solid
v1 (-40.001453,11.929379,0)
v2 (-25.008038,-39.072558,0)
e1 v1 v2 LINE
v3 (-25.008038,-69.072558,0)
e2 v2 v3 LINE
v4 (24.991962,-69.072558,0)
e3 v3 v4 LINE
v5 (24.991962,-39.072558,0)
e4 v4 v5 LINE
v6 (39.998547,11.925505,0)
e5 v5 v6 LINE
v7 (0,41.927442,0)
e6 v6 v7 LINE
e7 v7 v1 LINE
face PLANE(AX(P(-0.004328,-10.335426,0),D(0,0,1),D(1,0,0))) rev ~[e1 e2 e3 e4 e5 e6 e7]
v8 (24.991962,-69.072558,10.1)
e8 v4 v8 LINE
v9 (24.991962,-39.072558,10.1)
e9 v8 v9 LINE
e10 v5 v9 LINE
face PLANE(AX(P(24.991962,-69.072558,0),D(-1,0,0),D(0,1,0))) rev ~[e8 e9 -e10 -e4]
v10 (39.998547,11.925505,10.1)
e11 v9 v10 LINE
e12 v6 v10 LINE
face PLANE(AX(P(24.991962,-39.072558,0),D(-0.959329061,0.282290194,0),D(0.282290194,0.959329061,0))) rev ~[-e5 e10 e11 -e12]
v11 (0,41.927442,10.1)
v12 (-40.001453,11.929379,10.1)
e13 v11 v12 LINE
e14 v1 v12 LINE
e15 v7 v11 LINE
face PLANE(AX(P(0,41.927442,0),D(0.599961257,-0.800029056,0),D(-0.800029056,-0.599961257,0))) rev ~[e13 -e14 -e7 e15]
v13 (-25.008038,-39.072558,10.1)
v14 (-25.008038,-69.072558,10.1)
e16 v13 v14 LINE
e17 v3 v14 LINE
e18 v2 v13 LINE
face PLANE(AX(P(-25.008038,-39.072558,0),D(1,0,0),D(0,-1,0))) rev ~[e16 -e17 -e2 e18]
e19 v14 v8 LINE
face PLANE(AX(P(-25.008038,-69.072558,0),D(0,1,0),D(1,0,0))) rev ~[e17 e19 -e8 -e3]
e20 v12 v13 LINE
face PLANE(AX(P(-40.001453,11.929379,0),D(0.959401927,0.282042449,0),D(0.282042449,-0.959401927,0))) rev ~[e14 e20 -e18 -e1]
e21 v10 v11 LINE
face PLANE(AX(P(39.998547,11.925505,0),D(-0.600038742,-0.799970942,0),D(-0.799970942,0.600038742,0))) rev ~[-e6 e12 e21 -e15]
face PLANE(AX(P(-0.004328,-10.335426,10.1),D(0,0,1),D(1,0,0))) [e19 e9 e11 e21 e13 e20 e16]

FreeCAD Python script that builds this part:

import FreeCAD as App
import Part
import Sketcher

V = App.Vector
Q = App.Units.Quantity


def add_polygon(sketch, points):
    """Adds a closed chain of lines whose ends are joined by coincident constraints."""
    first, n = sketch.GeometryCount, len(points)
    for a, b in zip(points, points[1:] + points[:1]):
        sketch.addGeometry(Part.LineSegment(App.Vector(*a, 0), App.Vector(*b, 0)), False)
    for i in range(n):
        sketch.addConstraint(Sketcher.Constraint("Coincident", first + i, 2, first + (i + 1) % n, 1))

doc = App.newDocument("Part")
body = doc.addObject("PartDesign::Body", "Body")

sketch1 = doc.addObject("Sketcher::SketchObject", "Sketch")
body.addObject(sketch1)
sketch1.AttachmentSupport = (doc.XY_Plane, [""])
sketch1.MapMode = "FlatFace"
add_polygon(sketch1, [(-40.001453, 11.929379), (-25.008038, -39.072558), (-25.008038, -69.072558), (24.991962, -69.072558), (24.991962, -39.072558), (39.998547, 11.925505), (0, 41.927442)])
sketch1.addConstraint([
    Sketcher.Constraint("Vertical", 1),
    Sketcher.Constraint("Horizontal", 2),
    Sketcher.Constraint("Vertical", 3),
    Sketcher.Constraint("PointOnObject", 5, 2, -2),
    Sketcher.Constraint("Horizontal", 0, 2, 3, 2),
    Sketcher.Constraint("Equal", 0, 4),
    Sketcher.Constraint("Equal", 5, 6),
    Sketcher.Constraint("DistanceX", 2, 1, 2, 2, Q("50 mm")),
    Sketcher.Constraint("DistanceY", 1, 2, 1, 1, Q("30 mm")),
    Sketcher.Constraint("Distance", 5, Q("50 mm")),
    Sketcher.Constraint("DistanceY", 3, 2, 5, 2, Q("81 mm")),
    Sketcher.Constraint("DistanceX", 6, 2, 4, 2, Q("80 mm")),
    Sketcher.Constraint("DistanceY", 1, 2, -1, 1, Q("69.072558 mm")),
    Sketcher.Constraint("DistanceY", -1, 1, 6, 2, Q("11.929379 mm")),
])
pad1 = doc.addObject("PartDesign::Pad", "Pad")
body.addObject(pad1)
pad1.Profile = sketch1
pad1.Length = 10.1

doc.recompute()
